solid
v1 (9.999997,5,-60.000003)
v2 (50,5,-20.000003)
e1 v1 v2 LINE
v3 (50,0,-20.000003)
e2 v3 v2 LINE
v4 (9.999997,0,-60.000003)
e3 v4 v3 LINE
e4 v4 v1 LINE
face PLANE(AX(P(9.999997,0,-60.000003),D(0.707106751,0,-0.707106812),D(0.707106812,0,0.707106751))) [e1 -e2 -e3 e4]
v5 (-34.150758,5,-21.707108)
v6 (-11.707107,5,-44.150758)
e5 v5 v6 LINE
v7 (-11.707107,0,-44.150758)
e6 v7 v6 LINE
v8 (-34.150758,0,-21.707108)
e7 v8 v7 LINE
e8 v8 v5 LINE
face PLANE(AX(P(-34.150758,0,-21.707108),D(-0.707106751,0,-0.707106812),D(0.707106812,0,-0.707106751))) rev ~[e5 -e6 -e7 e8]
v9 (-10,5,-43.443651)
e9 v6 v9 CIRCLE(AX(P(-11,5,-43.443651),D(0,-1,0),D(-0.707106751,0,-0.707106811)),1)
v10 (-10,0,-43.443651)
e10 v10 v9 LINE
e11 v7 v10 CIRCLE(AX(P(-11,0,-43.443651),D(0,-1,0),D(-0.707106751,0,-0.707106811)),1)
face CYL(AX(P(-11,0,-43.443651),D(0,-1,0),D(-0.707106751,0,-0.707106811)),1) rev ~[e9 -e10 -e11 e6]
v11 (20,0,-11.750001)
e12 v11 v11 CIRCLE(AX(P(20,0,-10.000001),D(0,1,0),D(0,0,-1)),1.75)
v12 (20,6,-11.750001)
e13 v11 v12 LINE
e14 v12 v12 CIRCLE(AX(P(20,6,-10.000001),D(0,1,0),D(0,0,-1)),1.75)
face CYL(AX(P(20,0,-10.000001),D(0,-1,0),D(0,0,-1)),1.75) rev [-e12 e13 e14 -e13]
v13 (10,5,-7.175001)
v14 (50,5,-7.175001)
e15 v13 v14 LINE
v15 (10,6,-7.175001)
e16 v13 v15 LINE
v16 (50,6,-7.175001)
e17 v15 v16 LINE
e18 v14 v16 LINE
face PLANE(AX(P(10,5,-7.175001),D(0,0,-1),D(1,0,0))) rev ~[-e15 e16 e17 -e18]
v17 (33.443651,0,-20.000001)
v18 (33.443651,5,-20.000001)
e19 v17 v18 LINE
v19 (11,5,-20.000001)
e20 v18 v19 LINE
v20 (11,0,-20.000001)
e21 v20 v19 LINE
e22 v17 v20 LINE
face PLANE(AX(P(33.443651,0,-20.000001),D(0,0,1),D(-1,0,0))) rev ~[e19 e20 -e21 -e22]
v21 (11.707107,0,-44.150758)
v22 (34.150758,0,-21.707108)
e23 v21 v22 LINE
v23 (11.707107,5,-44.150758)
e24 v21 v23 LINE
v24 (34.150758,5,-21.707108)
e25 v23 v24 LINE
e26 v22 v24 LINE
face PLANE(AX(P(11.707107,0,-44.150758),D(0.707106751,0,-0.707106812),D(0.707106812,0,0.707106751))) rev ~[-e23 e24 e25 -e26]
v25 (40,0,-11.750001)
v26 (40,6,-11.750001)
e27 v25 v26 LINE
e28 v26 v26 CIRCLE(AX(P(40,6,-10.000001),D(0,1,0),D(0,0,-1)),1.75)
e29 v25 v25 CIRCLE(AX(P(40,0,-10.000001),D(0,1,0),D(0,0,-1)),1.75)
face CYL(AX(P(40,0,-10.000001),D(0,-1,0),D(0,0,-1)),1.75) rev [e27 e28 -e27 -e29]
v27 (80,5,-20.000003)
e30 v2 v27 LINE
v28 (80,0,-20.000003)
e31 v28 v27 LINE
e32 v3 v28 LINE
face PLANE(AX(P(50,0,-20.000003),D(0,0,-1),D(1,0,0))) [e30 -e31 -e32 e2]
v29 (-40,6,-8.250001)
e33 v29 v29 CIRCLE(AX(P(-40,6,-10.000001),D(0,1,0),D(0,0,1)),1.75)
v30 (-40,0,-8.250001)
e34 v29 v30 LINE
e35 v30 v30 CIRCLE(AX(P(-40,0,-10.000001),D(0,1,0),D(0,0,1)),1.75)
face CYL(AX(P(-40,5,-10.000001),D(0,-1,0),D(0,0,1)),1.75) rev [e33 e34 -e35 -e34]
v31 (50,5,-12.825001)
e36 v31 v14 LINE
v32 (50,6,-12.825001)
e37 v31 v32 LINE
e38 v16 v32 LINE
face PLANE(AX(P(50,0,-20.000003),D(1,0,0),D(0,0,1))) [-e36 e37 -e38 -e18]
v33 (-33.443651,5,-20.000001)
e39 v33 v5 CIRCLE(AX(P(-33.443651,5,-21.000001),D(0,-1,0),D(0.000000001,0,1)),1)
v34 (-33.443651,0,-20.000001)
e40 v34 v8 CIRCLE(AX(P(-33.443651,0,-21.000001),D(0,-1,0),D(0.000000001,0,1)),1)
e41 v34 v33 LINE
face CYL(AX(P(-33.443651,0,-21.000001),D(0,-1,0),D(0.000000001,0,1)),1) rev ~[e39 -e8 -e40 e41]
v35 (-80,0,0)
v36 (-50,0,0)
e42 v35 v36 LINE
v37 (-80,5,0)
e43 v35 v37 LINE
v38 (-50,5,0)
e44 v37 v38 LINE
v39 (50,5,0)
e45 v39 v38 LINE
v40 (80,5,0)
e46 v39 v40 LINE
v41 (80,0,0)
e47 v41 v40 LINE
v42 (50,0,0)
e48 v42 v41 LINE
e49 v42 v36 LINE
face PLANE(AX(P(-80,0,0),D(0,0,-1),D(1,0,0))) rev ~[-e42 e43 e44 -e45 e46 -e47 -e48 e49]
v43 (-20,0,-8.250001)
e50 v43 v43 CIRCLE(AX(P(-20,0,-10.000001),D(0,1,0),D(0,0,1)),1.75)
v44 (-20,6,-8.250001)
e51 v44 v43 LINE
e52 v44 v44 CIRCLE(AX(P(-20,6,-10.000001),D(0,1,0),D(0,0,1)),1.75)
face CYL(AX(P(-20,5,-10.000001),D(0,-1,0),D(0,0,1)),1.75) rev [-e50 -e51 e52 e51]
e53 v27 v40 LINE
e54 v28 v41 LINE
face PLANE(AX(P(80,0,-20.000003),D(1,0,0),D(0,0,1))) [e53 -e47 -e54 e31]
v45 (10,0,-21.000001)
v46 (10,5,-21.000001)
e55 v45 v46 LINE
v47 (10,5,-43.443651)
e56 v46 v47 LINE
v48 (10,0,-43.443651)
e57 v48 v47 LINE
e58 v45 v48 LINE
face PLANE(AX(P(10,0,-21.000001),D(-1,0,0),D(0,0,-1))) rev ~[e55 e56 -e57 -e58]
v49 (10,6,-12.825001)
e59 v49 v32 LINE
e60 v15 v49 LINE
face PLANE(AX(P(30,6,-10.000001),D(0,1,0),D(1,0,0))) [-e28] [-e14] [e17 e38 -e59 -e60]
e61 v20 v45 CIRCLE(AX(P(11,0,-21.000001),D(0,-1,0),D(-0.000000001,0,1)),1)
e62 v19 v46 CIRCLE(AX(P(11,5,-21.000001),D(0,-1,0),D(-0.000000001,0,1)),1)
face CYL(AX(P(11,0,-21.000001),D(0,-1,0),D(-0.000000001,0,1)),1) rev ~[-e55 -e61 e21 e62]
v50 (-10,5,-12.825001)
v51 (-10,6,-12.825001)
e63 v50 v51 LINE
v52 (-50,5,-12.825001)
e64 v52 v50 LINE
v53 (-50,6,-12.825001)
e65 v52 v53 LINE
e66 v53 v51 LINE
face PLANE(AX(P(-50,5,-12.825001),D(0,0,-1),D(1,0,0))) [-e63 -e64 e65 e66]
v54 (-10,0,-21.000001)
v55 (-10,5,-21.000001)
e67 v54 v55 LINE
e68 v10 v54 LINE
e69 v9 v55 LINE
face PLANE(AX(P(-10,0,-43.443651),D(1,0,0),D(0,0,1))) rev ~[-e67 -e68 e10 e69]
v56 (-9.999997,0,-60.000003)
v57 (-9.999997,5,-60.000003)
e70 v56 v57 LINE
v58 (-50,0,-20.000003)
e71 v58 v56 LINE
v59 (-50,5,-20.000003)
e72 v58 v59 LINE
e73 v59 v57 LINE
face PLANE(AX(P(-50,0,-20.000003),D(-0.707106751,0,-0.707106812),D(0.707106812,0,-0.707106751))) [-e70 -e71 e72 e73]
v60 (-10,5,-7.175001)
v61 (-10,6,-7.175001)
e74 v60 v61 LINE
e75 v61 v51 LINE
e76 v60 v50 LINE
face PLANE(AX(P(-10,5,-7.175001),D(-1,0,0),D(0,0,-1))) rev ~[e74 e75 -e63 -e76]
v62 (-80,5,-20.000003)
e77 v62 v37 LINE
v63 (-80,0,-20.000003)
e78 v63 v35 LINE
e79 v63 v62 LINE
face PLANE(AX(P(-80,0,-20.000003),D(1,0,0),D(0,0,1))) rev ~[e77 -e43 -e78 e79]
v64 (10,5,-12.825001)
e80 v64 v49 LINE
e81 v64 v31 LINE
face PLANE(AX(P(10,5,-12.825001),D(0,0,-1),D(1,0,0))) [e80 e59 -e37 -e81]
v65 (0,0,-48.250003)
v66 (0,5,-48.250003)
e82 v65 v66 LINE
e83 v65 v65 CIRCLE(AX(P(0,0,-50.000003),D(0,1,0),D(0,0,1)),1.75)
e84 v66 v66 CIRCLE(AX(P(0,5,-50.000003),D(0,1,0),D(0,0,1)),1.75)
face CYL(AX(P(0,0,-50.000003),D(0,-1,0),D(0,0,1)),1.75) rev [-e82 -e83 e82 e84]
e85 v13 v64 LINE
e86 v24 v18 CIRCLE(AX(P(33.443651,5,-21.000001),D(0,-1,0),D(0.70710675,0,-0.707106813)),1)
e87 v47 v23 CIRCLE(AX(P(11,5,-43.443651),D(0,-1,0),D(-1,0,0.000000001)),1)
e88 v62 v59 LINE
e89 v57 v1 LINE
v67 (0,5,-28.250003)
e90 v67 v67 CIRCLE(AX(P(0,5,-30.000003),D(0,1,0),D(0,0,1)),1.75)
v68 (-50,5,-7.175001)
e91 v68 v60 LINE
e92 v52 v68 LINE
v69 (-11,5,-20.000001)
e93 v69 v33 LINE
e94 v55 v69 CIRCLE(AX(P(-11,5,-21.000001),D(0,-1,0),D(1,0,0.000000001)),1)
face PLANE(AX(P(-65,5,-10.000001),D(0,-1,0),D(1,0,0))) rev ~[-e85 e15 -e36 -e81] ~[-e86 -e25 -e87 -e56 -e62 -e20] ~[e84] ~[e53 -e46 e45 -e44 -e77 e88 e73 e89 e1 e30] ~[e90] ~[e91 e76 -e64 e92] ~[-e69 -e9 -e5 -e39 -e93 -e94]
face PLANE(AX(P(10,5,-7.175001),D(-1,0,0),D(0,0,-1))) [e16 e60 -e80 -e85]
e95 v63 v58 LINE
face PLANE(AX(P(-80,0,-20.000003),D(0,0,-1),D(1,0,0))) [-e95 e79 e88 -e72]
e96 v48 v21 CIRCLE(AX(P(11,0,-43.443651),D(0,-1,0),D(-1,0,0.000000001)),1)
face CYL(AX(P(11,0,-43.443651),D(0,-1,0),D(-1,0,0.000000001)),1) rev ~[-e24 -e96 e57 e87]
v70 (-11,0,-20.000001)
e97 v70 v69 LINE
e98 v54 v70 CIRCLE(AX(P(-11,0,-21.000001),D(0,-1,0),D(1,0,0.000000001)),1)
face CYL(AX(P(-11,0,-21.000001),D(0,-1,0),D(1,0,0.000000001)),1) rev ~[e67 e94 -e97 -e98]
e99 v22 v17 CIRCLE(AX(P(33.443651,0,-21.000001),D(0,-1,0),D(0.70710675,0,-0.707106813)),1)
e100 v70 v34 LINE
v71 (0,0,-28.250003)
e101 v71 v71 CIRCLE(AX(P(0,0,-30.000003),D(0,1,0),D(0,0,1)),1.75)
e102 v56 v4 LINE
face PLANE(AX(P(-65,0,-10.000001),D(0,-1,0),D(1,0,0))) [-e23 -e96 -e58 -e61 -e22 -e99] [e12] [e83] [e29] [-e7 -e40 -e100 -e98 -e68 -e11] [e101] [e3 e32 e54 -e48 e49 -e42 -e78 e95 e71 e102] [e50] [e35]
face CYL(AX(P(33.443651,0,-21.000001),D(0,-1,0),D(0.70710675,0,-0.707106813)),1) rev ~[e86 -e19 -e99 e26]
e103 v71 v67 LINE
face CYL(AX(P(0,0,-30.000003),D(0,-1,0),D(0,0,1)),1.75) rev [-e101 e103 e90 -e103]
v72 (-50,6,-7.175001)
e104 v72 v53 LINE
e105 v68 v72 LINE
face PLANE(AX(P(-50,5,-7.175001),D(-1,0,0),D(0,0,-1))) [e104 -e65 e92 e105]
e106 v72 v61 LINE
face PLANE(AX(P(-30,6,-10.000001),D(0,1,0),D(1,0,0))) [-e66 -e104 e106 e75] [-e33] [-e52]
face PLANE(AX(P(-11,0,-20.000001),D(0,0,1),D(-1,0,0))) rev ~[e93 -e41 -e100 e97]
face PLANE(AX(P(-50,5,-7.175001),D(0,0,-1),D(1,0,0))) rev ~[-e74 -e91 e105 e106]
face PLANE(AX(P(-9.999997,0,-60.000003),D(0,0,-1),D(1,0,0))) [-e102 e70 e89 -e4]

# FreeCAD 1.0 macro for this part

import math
import FreeCAD as App
import Part
import Sketcher

V = App.Vector

doc = App.newDocument("Part")
body = doc.addObject("PartDesign::Body", "Body")

sketch1 = body.newObject("Sketcher::SketchObject", "Sketch")
sketch1.AttachmentSupport = (doc.getObject("XZ_Plane"), [""])
sketch1.MapMode = "FlatFace"
sketch1.addGeometry([
    Part.LineSegment(V(-50, -20, 0), V(-50, 0, 0)),
    Part.LineSegment(V(-50, 0, 0), V(50, 0, 0)),
    Part.LineSegment(V(50, 0, 0), V(50, -20, 0)),
    Part.LineSegment(V(50, -20, 0), V(10, -60, 0)),
    Part.LineSegment(V(10, -60, 0), V(-10, -60, 0)),
    Part.LineSegment(V(-10, -60, 0), V(-50, -20, 0)),
    Part.Circle(V(40, -10, 0), V(0, 0, 1), 1.8),
    Part.Circle(V(20, -10, 0), V(0, 0, 1), 1.8),
    Part.Circle(V(-20, -10, 0), V(0, 0, 1), 1.8),
    Part.Circle(V(-40, -10, 0), V(0, 0, 1), 1.8),
    Part.LineSegment(V(11.7, -44.2, 0), V(34.2, -21.7, 0)),
    Part.ArcOfCircle(Part.Circle(V(33.4, -21, 0), V(0, 0, 1), 1), math.radians(-45), math.radians(90)),
    Part.LineSegment(V(33.4, -20, 0), V(11, -20, 0)),
    Part.ArcOfCircle(Part.Circle(V(11, -21, 0), V(0, 0, 1), 1), math.radians(90), math.radians(180)),
    Part.LineSegment(V(10, -21, 0), V(10, -43.4, 0)),
    Part.ArcOfCircle(Part.Circle(V(11, -43.4, 0), V(0, 0, 1), 1), math.radians(180), math.radians(315)),
    Part.Circle(V(0, -30, 0), V(0, 0, 1), 1.8),
    Part.LineSegment(V(-10, -43.4, 0), V(-10, -21, 0)),
    Part.ArcOfCircle(Part.Circle(V(-11, -21, 0), V(0, 0, 1), 1), math.radians(0), math.radians(90)),
    Part.LineSegment(V(-11, -20, 0), V(-33.4, -20, 0)),
    Part.ArcOfCircle(Part.Circle(V(-33.4, -21, 0), V(0, 0, 1), 1), math.radians(90), math.radians(225)),
    Part.LineSegment(V(-34.2, -21.7, 0), V(-11.7, -44.2, 0)),
    Part.ArcOfCircle(Part.Circle(V(-11, -43.4, 0), V(0, 0, 1), 1), math.radians(-135), math.radians(0)),
    Part.Circle(V(0, -50, 0), V(0, 0, 1), 1.8),
], False)
sketch1.addConstraint([
    Sketcher.Constraint("Coincident", 0, 2, 1, 1),
    Sketcher.Constraint("Coincident", 1, 2, 2, 1),
    Sketcher.Constraint("Coincident", 2, 2, 3, 1),
    Sketcher.Constraint("Coincident", 3, 2, 4, 1),
    Sketcher.Constraint("Coincident", 4, 2, 5, 1),
    Sketcher.Constraint("Coincident", 5, 2, 0, 1),
    Sketcher.Constraint("Tangent", 10, 2, 11, 1),
    Sketcher.Constraint("Tangent", 11, 2, 12, 1),
    Sketcher.Constraint("Tangent", 12, 2, 13, 1),
    Sketcher.Constraint("Tangent", 13, 2, 14, 1),
    Sketcher.Constraint("Tangent", 14, 2, 15, 1),
    Sketcher.Constraint("Tangent", 15, 2, 10, 1),
    Sketcher.Constraint("Tangent", 17, 2, 18, 1),
    Sketcher.Constraint("Tangent", 18, 2, 19, 1),
    Sketcher.Constraint("Tangent", 19, 2, 20, 1),
    Sketcher.Constraint("Tangent", 20, 2, 21, 1),
    Sketcher.Constraint("Tangent", 21, 2, 22, 1),
    Sketcher.Constraint("Tangent", 22, 2, 17, 1),
    Sketcher.Constraint("Vertical", 0),
    Sketcher.Constraint("Horizontal", 1),
    Sketcher.Constraint("Vertical", 2),
    Sketcher.Constraint("Horizontal", 4),
    Sketcher.Constraint("Horizontal", 12),
    Sketcher.Constraint("Vertical", 14),
    Sketcher.Constraint("Vertical", 17),
    Sketcher.Constraint("Horizontal", 19),
    Sketcher.Constraint("Equal", 6, 7),
    Sketcher.Constraint("Equal", 7, 8),
    Sketcher.Constraint("Equal", 8, 9),
    Sketcher.Constraint("Equal", 11, 13),
    Sketcher.Constraint("Equal", 13, 15),
    Sketcher.Constraint("Equal", 9, 16),
    Sketcher.Constraint("Equal", 15, 18),
    Sketcher.Constraint("Equal", 18, 20),
    Sketcher.Constraint("Equal", 20, 22),
    Sketcher.Constraint("Equal", 16, 23),
    Sketcher.Constraint("Symmetric", 0, 2, 1, 2, -1, 1),
    Sketcher.Constraint("Symmetric", 7, 3, 8, 3, -2),
    Sketcher.Constraint("Symmetric", 6, 3, 9, 3, -2),
    Sketcher.Constraint("Symmetric", 13, 3, 18, 3, -2),
    Sketcher.Constraint("Symmetric", 10, 2, 20, 2, -2),
    Sketcher.Constraint("PointOnObject", 16, 3, -2),
    Sketcher.Constraint("PointOnObject", 23, 3, -2),
    Sketcher.Constraint("Perpendicular", 3, 5),
    Sketcher.Constraint("Perpendicular", 5, 10),
    Sketcher.Constraint("Perpendicular", 10, 21),
    Sketcher.Constraint("Horizontal", 6, 3, 7, 3),
    Sketcher.Constraint("Horizontal", 2, 2, 5, 2),
    Sketcher.Constraint("Horizontal", 5, 2, 11, 2),
    Sketcher.Constraint("Radius", 11, 1.0),
    Sketcher.Constraint("Diameter", 6, 3.5),
    Sketcher.Constraint("DistanceX", 1, 1, 1, 2, 100.0),
    Sketcher.Constraint("DistanceX", -1, 1, 6, 3, 40.0),
    Sketcher.Constraint("DistanceY", 6, 3, -1, 1, 10.000001),
    Sketcher.Constraint("DistanceX", -1, 1, 7, 3, 20.0),
    Sketcher.Constraint("DistanceY", 11, 3, -1, 1, 21.000001),
    Sketcher.Constraint("DistanceX", -1, 1, 13, 3, 11.0),
    Sketcher.Constraint("DistanceY", 16, 3, 13, 3, 9.000001),
    Sketcher.Constraint("DistanceY", 23, 3, 16, 3, 20.0),
    Sketcher.Constraint("DistanceY", 3, 2, 23, 3, 10.0),
    Sketcher.Constraint("DistanceX", 12, 2, 12, 1, 22.443651),
])
pad1 = body.newObject("PartDesign::Pad", "Pad")
pad1.Profile = sketch1
pad1.Length = 5
pad1.Reversed = True

sketch2 = body.newObject("Sketcher::SketchObject", "Sketch001")
sketch2.AttachmentSupport = (doc.getObject("XZ_Plane"), [""])
sketch2.MapMode = "FlatFace"
sketch2.AttachmentOffset = App.Placement(V(0, 0, -5), App.Rotation())
sketch2.addGeometry([
    Part.LineSegment(V(-50, -12.8, 0), V(-50, -7.2, 0)),
    Part.LineSegment(V(-50, -7.2, 0), V(-10, -7.2, 0)),
    Part.LineSegment(V(-10, -7.2, 0), V(-10, -12.8, 0)),
    Part.LineSegment(V(-10, -12.8, 0), V(-50, -12.8, 0)),
    Part.Circle(V(-40, -10, 0), V(0, 0, 1), 1.8),
    Part.Circle(V(-20, -10, 0), V(0, 0, 1), 1.8),
    Part.LineSegment(V(10, -12.8, 0), V(10, -7.2, 0)),
    Part.LineSegment(V(10, -7.2, 0), V(50, -7.2, 0)),
    Part.LineSegment(V(50, -7.2, 0), V(50, -12.8, 0)),
    Part.LineSegment(V(50, -12.8, 0), V(10, -12.8, 0)),
    Part.Circle(V(20, -10, 0), V(0, 0, 1), 1.8),
    Part.Circle(V(40, -10, 0), V(0, 0, 1), 1.8),
], False)
sketch2.addConstraint([
    Sketcher.Constraint("Coincident", 0, 2, 1, 1),
    Sketcher.Constraint("Coincident", 1, 2, 2, 1),
    Sketcher.Constraint("Coincident", 2, 2, 3, 1),
    Sketcher.Constraint("Coincident", 3, 2, 0, 1),
    Sketcher.Constraint("Coincident", 6, 2, 7, 1),
    Sketcher.Constraint("Coincident", 7, 2, 8, 1),
    Sketcher.Constraint("Coincident", 8, 2, 9, 1),
    Sketcher.Constraint("Coincident", 9, 2, 6, 1),
    Sketcher.Constraint("Vertical", 0),
    Sketcher.Constraint("Horizontal", 1),
    Sketcher.Constraint("Vertical", 2),
    Sketcher.Constraint("Horizontal", 3),
    Sketcher.Constraint("Vertical", 6),
    Sketcher.Constraint("Horizontal", 7),
    Sketcher.Constraint("Vertical", 8),
    Sketcher.Constraint("Horizontal", 9),
    Sketcher.Constraint("Equal", 4, 5),
    Sketcher.Constraint("Equal", 5, 10),
    Sketcher.Constraint("Equal", 10, 11),
    Sketcher.Constraint("Symmetric", 5, 3, 10, 3, -2),
    Sketcher.Constraint("Symmetric", 4, 3, 11, 3, -2),
    Sketcher.Constraint("Symmetric", 1, 2, 6, 2, -2),
    Sketcher.Constraint("Symmetric", 3, 2, 8, 2, -2),
    Sketcher.Constraint("Horizontal", 4, 3, 5, 3),
    Sketcher.Constraint("Diameter", 4, 3.5),
    Sketcher.Constraint("DistanceX", 1, 1, 1, 2, 40.0),
    Sketcher.Constraint("DistanceX", 4, 3, -1, 1, 40.0),
    Sketcher.Constraint("DistanceY", 4, 3, -1, 1, 10.000001),
    Sketcher.Constraint("DistanceX", 5, 3, -1, 1, 20.0),
    Sketcher.Constraint("DistanceX", 0, 2, -1, 1, 50.0),
    Sketcher.Constraint("DistanceY", 0, 1, 0, 2, 5.65),
    Sketcher.Constraint("DistanceY", 0, 2, -1, 1, 7.175001),
])
pad2 = body.newObject("PartDesign::Pad", "Pad001")
pad2.Profile = sketch2
pad2.Length = 1
pad2.Reversed = True

sketch3 = body.newObject("Sketcher::SketchObject", "Sketch002")
sketch3.AttachmentSupport = (doc.getObject("XZ_Plane"), [""])
sketch3.MapMode = "FlatFace"
sketch3.addGeometry([
    Part.LineSegment(V(-80, 0, 0), V(-80, -20, 0)),
    Part.LineSegment(V(-80, -20, 0), V(-50, -20, 0)),
    Part.LineSegment(V(-50, -20, 0), V(-50, 0, 0)),
    Part.LineSegment(V(-50, 0, 0), V(-80, 0, 0)),
    Part.LineSegment(V(50, 0, 0), V(50, -20, 0)),
    Part.LineSegment(V(50, -20, 0), V(80, -20, 0)),
    Part.LineSegment(V(80, -20, 0), V(80, 0, 0)),
    Part.LineSegment(V(80, 0, 0), V(50, 0, 0)),
], False)
sketch3.addConstraint([
    Sketcher.Constraint("Coincident", 0, 2, 1, 1),
    Sketcher.Constraint("Coincident", 1, 2, 2, 1),
    Sketcher.Constraint("Coincident", 2, 2, 3, 1),
    Sketcher.Constraint("Coincident", 3, 2, 0, 1),
    Sketcher.Constraint("Coincident", 4, 2, 5, 1),
    Sketcher.Constraint("Coincident", 5, 2, 6, 1),
    Sketcher.Constraint("Coincident", 6, 2, 7, 1),
    Sketcher.Constraint("Coincident", 7, 2, 4, 1),
    Sketcher.Constraint("Vertical", 0),
    Sketcher.Constraint("Horizontal", 1),
    Sketcher.Constraint("Vertical", 2),
    Sketcher.Constraint("Horizontal", 3),
    Sketcher.Constraint("Vertical", 4),
    Sketcher.Constraint("Horizontal", 5),
    Sketcher.Constraint("Vertical", 6),
    Sketcher.Constraint("Horizontal", 7),
    Sketcher.Constraint("Symmetric", 3, 2, 6, 2, -1, 1),
    Sketcher.Constraint("Symmetric", 1, 2, 4, 2, -2),
    Sketcher.Constraint("PointOnObject", 2, 2, -1),
    Sketcher.Constraint("DistanceX", 1, 1, 1, 2, 30.0),
    Sketcher.Constraint("DistanceX", 0, 2, -1, 1, 80.0),
    Sketcher.Constraint("DistanceY", 0, 2, 0, 1, 20.000003),
])
pad3 = body.newObject("PartDesign::Pad", "Pad002")
pad3.Profile = sketch3
pad3.Length = 5
pad3.Reversed = True

doc.recompute()
